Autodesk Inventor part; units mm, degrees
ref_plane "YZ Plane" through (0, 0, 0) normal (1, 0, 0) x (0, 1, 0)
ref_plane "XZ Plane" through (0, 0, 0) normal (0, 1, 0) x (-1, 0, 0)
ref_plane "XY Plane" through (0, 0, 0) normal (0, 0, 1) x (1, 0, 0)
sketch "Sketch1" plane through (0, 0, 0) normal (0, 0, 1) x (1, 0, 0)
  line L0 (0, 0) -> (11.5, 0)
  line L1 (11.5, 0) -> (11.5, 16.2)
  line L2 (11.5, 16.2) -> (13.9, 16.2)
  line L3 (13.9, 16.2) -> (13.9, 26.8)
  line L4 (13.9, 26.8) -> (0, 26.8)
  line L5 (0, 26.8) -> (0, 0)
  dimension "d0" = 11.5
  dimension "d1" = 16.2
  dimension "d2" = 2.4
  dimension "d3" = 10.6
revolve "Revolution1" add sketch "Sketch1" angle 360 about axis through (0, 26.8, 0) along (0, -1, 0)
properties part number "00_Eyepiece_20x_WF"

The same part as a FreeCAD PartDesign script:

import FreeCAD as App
import Part
import Sketcher

V = App.Vector

doc = App.newDocument("Part")
params = doc.addObject("Spreadsheet::Sheet", "Params")
for row, (alias, value) in enumerate([
    ("sketch1_width", "11.5 mm"),
    ("sketch1_width2", "2.4 mm"),
    ("sketch1_height", "16.2 mm"),
    ("sketch1_height2", "10.6 mm"),
    ("revolution_angle", "360 deg"),
], start=1):
    params.set(f"A{row}", alias)
    params.set(f"B{row}", "=" + value)
    params.setAlias(f"B{row}", alias)

body = doc.addObject("PartDesign::Body", "Body")

sketch1 = body.newObject("Sketcher::SketchObject", "Sketch")
sketch1.AttachmentSupport = (doc.getObject("XY_Plane"), [""])
sketch1.MapMode = "FlatFace"
sketch1.addGeometry(Part.LineSegment(V(0, 26.8, 0), V(0, 0, 0)), False)
sketch1.addGeometry(Part.LineSegment(V(0, 0, 0), V(11.5, 0, 0)), False)
sketch1.addGeometry(Part.LineSegment(V(11.5, 0, 0), V(11.5, 16.2, 0)), False)
sketch1.addGeometry(Part.LineSegment(V(11.5, 16.2, 0), V(13.9, 16.2, 0)), False)
sketch1.addGeometry(Part.LineSegment(V(13.9, 16.2, 0), V(13.9, 26.8, 0)), False)
sketch1.addGeometry(Part.LineSegment(V(13.9, 26.8, 0), V(0, 26.8, 0)), False)
sketch1.addConstraint(Sketcher.Constraint("Coincident", 0, 2, 1, 1))
sketch1.addConstraint(Sketcher.Constraint("Coincident", 1, 2, 2, 1))
sketch1.addConstraint(Sketcher.Constraint("Coincident", 2, 2, 3, 1))
sketch1.addConstraint(Sketcher.Constraint("Coincident", 3, 2, 4, 1))
sketch1.addConstraint(Sketcher.Constraint("Coincident", 4, 2, 5, 1))
sketch1.addConstraint(Sketcher.Constraint("Coincident", 5, 2, 0, 1))
sketch1.addConstraint(Sketcher.Constraint("Vertical", 0))
sketch1.addConstraint(Sketcher.Constraint("Horizontal", 1))
sketch1.addConstraint(Sketcher.Constraint("Vertical", 2))
sketch1.addConstraint(Sketcher.Constraint("Horizontal", 3))
sketch1.addConstraint(Sketcher.Constraint("Vertical", 4))
sketch1.addConstraint(Sketcher.Constraint("Horizontal", 5))
sketch1.addConstraint(Sketcher.Constraint("Coincident", 0, 2, -1, 1))
sketch1.addConstraint(Sketcher.Constraint("DistanceX", 1, 1, 1, 2, 11.5))
sketch1.addConstraint(Sketcher.Constraint("DistanceX", 3, 1, 3, 2, 2.4))
sketch1.addConstraint(Sketcher.Constraint("DistanceY", 2, 1, 2, 2, 16.2))
sketch1.addConstraint(Sketcher.Constraint("DistanceY", 4, 1, 4, 2, 10.6))
sketch1.setExpression("Constraints[13]", "Params.sketch1_width")
sketch1.setExpression("Constraints[14]", "Params.sketch1_width2")
sketch1.setExpression("Constraints[15]", "Params.sketch1_height")
sketch1.setExpression("Constraints[16]", "Params.sketch1_height2")
revolution = body.newObject("PartDesign::Revolution", "Revolution")
revolution.Profile = sketch1
revolution.ReferenceAxis = (sketch1, ["V_Axis"])
revolution.setExpression("Angle", "Params.revolution_angle")

doc.recompute()
